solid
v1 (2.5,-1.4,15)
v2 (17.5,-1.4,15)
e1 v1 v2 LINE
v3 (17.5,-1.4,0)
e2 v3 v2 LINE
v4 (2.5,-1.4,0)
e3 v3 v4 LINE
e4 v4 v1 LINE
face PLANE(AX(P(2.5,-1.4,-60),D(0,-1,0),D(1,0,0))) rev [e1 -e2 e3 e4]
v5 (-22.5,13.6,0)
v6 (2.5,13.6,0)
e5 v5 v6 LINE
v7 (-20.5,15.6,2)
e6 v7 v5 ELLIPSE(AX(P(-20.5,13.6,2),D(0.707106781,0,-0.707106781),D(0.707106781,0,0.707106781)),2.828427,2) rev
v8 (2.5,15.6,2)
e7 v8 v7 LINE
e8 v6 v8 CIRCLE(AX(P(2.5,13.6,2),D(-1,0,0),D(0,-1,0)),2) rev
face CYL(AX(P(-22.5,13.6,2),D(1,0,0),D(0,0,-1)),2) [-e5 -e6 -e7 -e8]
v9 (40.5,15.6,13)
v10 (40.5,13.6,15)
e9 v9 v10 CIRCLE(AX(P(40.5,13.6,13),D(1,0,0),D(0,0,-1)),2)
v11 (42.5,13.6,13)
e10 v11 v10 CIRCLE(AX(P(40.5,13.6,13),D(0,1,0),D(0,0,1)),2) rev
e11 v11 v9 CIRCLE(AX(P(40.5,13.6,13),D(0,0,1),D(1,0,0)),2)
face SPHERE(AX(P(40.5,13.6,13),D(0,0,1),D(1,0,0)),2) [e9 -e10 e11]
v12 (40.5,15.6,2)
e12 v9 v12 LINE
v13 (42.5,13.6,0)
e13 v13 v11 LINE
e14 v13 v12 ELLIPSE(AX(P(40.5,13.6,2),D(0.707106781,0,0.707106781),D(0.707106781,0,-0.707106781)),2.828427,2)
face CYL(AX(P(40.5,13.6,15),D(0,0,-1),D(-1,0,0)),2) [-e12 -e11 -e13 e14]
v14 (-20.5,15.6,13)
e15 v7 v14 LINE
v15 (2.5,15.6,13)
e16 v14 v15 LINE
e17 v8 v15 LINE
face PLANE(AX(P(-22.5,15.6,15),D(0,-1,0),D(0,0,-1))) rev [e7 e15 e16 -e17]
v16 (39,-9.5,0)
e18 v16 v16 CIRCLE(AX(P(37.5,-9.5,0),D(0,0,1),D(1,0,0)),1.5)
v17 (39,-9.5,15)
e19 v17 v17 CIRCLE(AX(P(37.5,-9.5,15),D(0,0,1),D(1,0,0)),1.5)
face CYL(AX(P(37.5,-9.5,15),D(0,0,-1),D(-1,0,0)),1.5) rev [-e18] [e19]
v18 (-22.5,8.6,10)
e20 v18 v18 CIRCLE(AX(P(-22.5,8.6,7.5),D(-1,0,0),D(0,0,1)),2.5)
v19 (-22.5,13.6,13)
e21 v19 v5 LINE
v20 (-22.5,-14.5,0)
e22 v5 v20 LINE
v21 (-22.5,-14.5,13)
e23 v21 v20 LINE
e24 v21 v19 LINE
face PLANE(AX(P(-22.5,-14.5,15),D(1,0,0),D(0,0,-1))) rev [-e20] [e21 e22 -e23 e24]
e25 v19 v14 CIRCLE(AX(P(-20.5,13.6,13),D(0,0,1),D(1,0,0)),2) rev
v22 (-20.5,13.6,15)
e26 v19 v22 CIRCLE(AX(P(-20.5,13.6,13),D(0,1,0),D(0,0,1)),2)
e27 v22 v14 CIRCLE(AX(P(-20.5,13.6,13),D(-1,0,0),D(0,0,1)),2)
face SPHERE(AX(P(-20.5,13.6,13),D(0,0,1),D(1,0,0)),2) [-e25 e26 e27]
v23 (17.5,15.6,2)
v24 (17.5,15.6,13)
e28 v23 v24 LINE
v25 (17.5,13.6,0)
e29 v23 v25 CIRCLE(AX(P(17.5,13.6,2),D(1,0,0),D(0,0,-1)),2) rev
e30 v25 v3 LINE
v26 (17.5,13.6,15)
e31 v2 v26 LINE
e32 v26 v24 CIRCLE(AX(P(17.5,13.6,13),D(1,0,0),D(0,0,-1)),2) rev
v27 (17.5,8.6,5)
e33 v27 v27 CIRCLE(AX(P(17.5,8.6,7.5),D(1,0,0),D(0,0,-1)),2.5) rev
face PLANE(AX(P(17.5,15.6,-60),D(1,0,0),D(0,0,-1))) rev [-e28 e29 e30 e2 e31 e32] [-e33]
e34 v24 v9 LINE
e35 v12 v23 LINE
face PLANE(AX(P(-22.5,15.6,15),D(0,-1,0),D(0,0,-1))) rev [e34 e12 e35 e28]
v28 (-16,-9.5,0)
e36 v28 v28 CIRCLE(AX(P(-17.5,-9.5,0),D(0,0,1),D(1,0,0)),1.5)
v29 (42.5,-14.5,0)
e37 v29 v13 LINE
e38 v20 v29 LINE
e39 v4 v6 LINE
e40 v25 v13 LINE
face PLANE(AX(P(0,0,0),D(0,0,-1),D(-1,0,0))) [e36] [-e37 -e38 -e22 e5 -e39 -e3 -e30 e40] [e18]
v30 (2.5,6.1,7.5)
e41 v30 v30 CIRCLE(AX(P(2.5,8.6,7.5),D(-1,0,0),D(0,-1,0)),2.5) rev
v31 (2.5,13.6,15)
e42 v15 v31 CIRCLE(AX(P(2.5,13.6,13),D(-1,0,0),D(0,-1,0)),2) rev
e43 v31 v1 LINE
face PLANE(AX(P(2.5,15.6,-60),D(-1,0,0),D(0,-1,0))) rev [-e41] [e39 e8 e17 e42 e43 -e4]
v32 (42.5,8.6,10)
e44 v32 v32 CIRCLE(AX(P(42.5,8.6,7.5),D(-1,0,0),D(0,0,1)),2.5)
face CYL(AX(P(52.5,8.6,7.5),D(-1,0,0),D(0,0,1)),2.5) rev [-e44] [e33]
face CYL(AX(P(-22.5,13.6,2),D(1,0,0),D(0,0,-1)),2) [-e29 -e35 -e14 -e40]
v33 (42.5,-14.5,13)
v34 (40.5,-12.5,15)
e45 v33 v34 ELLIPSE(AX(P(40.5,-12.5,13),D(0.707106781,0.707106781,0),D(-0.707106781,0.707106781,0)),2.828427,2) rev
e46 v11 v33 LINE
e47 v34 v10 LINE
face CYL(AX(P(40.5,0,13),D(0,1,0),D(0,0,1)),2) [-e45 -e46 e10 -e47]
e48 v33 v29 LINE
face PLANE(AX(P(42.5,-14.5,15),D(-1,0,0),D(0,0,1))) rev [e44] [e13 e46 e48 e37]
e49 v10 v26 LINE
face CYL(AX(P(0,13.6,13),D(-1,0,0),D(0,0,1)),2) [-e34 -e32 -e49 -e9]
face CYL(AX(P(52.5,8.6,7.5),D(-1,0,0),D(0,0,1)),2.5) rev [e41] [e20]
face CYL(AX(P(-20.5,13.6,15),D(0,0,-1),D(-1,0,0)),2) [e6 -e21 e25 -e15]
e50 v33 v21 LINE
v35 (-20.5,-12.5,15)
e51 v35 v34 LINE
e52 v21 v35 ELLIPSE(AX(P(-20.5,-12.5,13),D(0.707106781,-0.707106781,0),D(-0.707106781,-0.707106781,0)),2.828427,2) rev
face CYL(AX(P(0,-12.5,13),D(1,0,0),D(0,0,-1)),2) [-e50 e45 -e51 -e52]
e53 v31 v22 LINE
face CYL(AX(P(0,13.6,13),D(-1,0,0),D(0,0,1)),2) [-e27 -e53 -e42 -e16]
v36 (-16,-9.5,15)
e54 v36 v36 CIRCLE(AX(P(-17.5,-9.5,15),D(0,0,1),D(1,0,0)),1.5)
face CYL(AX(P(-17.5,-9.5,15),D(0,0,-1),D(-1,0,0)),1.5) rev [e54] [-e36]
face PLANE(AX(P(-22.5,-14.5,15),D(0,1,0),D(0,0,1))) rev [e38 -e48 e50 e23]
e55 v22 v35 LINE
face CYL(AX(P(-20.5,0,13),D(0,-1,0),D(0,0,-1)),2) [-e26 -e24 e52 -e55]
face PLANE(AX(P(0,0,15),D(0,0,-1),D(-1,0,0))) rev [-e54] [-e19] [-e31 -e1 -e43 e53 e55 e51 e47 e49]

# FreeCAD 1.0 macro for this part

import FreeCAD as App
import Part
import Sketcher


def edges_at(feature, points):
    """Names of the edges that pass closest to the given points."""
    edges = feature.Shape.Edges
    near = lambda p: min(range(len(edges)), key=lambda i: edges[i].distToShape(Part.Vertex(*p))[0])
    return sorted({f"Edge{near(p) + 1}" for p in points})


def add_polygon(sketch, points):
    """Adds a closed chain of lines whose ends are joined by coincident constraints."""
    first, n = sketch.GeometryCount, len(points)
    for a, b in zip(points, points[1:] + points[:1]):
        sketch.addGeometry(Part.LineSegment(App.Vector(*a, 0), App.Vector(*b, 0)), False)
    for i in range(n):
        sketch.addConstraint(Sketcher.Constraint("Coincident", first + i, 2, first + (i + 1) % n, 1))

doc = App.newDocument("Part")
body = doc.addObject("PartDesign::Body", "Body")

# Sketch on XY plane
sketch1 = body.newObject("Sketcher::SketchObject", "Sketch")
sketch1.AttachmentSupport = (doc.getObject("XY_Plane"), [""])
sketch1.MapMode = "FlatFace"
add_polygon(sketch1, [(-22.5, 15.6), (-22.5, -14.5), (42.5, -14.5), (42.5, 15.6)])  # lines 0-3
sketch1.addGeometry(Part.Circle(App.Vector(-17.5, -9.5, 0), App.Vector(0, 0, 1), 1.5), False)  # 4
sketch1.addGeometry(Part.Circle(App.Vector(37.5, -9.5, 0), App.Vector(0, 0, 1), 1.5), False)  # 5
sketch1.addConstraint([
    Sketcher.Constraint("Vertical", 0),
    Sketcher.Constraint("Horizontal", 1),
    Sketcher.Constraint("Vertical", 2),
    Sketcher.Constraint("Horizontal", 3),
    Sketcher.Constraint("Equal", 4, 5),
    Sketcher.Constraint("Horizontal", 4, 3, 5, 3),
    Sketcher.Constraint("Diameter", 4, 3.0),
    Sketcher.Constraint("DistanceX", 1, 1, 1, 2, 65.0),
    Sketcher.Constraint("DistanceY", 0, 2, 0, 1, 30.1),
    Sketcher.Constraint("DistanceX", 4, 3, 5, 3, 55.0),
    Sketcher.Constraint("DistanceX", 0, 2, 4, 3, 5.0),
    Sketcher.Constraint("DistanceY", 0, 2, 4, 3, 5.0),
    Sketcher.Constraint("DistanceX", 4, 3, -1, 1, 17.5),
    Sketcher.Constraint("DistanceY", 4, 3, -1, 1, 9.5),
])
pad1 = body.newObject("PartDesign::Pad", "Pad")
pad1.Profile = sketch1
pad1.Length = 15

# Sketch on YZ plane
sketch2 = body.newObject("Sketcher::SketchObject", "Sketch001")
sketch2.AttachmentSupport = (doc.getObject("YZ_Plane"), [""])
sketch2.MapMode = "FlatFace"
sketch2.AttachmentOffset = App.Placement(App.Vector(0, 0, -22.5), App.Rotation())
sketch2.addGeometry(Part.Circle(App.Vector(8.6, 7.5, 0), App.Vector(0, 0, 1), 2.5), False)
sketch2.addConstraint([
    Sketcher.Constraint("Diameter", 0, 5.0),
    Sketcher.Constraint("DistanceX", -1, 1, 0, 3, 8.6),
    Sketcher.Constraint("DistanceY", -1, 1, 0, 3, 7.5),
])
pocket1 = body.newObject("PartDesign::Pocket", "Pocket")
pocket1.Profile = sketch2
pocket1.Length = 75
pocket1.Reversed = True

# Sketch on XY plane
sketch3 = body.newObject("Sketcher::SketchObject", "Sketch002")
sketch3.AttachmentSupport = (doc.getObject("XY_Plane"), [""])
sketch3.MapMode = "FlatFace"
sketch3.AttachmentOffset = App.Placement(App.Vector(0, 0, 15), App.Rotation())
add_polygon(sketch3, [(2, 16), (2, -1), (18, -1), (18, 16)])  # lines 0-3
sketch3.addConstraint([
    Sketcher.Constraint("Vertical", 0),
    Sketcher.Constraint("Horizontal", 1),
    Sketcher.Constraint("Vertical", 2),
    Sketcher.Constraint("Horizontal", 3),
    Sketcher.Constraint("DistanceX", 1, 1, 1, 2, 15.0),
    Sketcher.Constraint("DistanceY", 0, 2, 0, 1, 17.0),
    Sketcher.Constraint("DistanceX", -1, 1, 0, 2, 2.5),
    Sketcher.Constraint("DistanceY", 0, 2, -1, 1, 1.4),
])
pocket2 = body.newObject("PartDesign::Pocket", "Pocket001")
pocket2.Profile = sketch3
pocket2.Length = 75
doc.recompute()

fillet = body.newObject("PartDesign::Fillet", "Fillet")
fillet.Base = (pocket2, edges_at(pocket2, [
    (42.5, 0.55, 15),
    (30, 15.6, 15),
    (-10, 15.6, 0),
    (-10, 15.6, 15),
    (-22.5, 0.55, 15),
    (30, 15.6, 0),
    (-22.5, 15.6, 7.5),
    (42.5, 15.6, 7.5),
    (10, -14.5, 15),
]))
fillet.Radius = 2

doc.recompute()
